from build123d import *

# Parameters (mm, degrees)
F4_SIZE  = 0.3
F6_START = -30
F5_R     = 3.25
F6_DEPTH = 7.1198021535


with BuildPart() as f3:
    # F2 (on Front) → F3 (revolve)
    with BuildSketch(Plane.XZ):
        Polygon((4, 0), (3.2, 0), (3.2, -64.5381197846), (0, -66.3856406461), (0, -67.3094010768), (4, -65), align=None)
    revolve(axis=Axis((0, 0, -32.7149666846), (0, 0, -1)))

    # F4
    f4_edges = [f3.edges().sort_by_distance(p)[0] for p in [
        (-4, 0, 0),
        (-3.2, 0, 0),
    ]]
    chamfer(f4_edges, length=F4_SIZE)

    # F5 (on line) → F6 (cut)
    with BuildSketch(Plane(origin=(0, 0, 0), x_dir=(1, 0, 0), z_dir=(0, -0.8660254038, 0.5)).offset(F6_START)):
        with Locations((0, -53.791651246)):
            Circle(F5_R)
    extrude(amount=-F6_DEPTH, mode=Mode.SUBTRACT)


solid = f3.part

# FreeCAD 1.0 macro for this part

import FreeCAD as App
import Part
import Sketcher
from FreeCAD import Vector
Q = App.Units.Quantity


def edges_at(feature, points):
    """Names of the edges that pass closest to the given points."""
    edges = feature.Shape.Edges
    near = lambda p: min(range(len(edges)), key=lambda i: edges[i].distToShape(Part.Vertex(*p))[0])
    return sorted({f"Edge{near(p) + 1}" for p in points})

doc = App.newDocument("Part")
body = doc.addObject("PartDesign::Body", "Body")

sketch1 = doc.addObject("Sketcher::SketchObject", "Sketch")
body.addObject(sketch1)
sketch1.AttachmentSupport = (doc.XZ_Plane, [""])
sketch1.MapMode = "FlatFace"
sketch1.addGeometry(Part.LineSegment(Vector(4, 0, 0), Vector(3.2, 0, 0)), False)
sketch1.addGeometry(Part.LineSegment(Vector(3.2, 0, 0), Vector(3.2, -64.5, 0)), False)
sketch1.addGeometry(Part.LineSegment(Vector(3.2, -64.5, 0), Vector(0, -66.4, 0)), False)
sketch1.addGeometry(Part.LineSegment(Vector(0, -66.4, 0), Vector(0, -67.3, 0)), False)
sketch1.addGeometry(Part.LineSegment(Vector(0, -67.3, 0), Vector(4, -65, 0)), False)
sketch1.addGeometry(Part.LineSegment(Vector(4, -65, 0), Vector(4, 0, 0)), False)
sketch1.addConstraint(Sketcher.Constraint("Coincident", 0, 2, 1, 1))
sketch1.addConstraint(Sketcher.Constraint("Coincident", 1, 2, 2, 1))
sketch1.addConstraint(Sketcher.Constraint("Coincident", 2, 2, 3, 1))
sketch1.addConstraint(Sketcher.Constraint("Coincident", 3, 2, 4, 1))
sketch1.addConstraint(Sketcher.Constraint("Coincident", 4, 2, 5, 1))
sketch1.addConstraint(Sketcher.Constraint("Coincident", 5, 2, 0, 1))
sketch1.addConstraint(Sketcher.Constraint("Horizontal", 0))
sketch1.addConstraint(Sketcher.Constraint("Vertical", 1))
sketch1.addConstraint(Sketcher.Constraint("Vertical", 3))
sketch1.addConstraint(Sketcher.Constraint("Vertical", 5))
sketch1.addConstraint(Sketcher.Constraint("PointOnObject", 0, 2, -1))
sketch1.addConstraint(Sketcher.Constraint("PointOnObject", 2, 2, -2))
sketch1.addConstraint(Sketcher.Constraint("Parallel", 2, 4))
sketch1.addConstraint(Sketcher.Constraint("DistanceY", 5, 1, 5, 2, 65.0))
sketch1.addConstraint(Sketcher.Constraint("Angle", 2, Q("-150 deg")))
sketch1.addConstraint(Sketcher.Constraint("DistanceX", 0, 2, 0, 1, 0.8))
sketch1.addConstraint(Sketcher.Constraint("DistanceX", -1, 1, 4, 2, 4.0))
sketch1.addConstraint(Sketcher.Constraint("DistanceY", 1, 2, 1, 1, 64.53812))
revolution = doc.addObject("PartDesign::Revolution", "Revolution")
body.addObject(revolution)
revolution.Profile = sketch1
revolution.ReferenceAxis = (sketch1, ["V_Axis"])
revolution.Angle = 360
doc.recompute()

chamfer = doc.addObject("PartDesign::Chamfer", "Chamfer")
body.addObject(chamfer)
chamfer.Base = (revolution, edges_at(revolution, [(-4, 0, 0), (-3.2, 0, 0)]))
chamfer.Size = 0.3

sketch2 = doc.addObject("Sketcher::SketchObject", "Sketch001")
body.addObject(sketch2)
sketch2.Placement = App.Placement(Vector(0, 25.980762, -15), App.Rotation(Vector(1, 0, 0), Vector(0, 0.5, 0.866025404), Vector(0, -0.866025404, 0.5), "ZXY"))
sketch2.addGeometry(Part.Circle(Vector(0, -53.8, 0), Vector(0, 0, 1), 3.2), False)
sketch2.addConstraint(Sketcher.Constraint("PointOnObject", 0, 3, -2))
sketch2.addConstraint(Sketcher.Constraint("Diameter", 0, 6.5))
sketch2.addConstraint(Sketcher.Constraint("DistanceY", 0, 3, -1, 1, 53.791651))
pocket1 = doc.addObject("PartDesign::Pocket", "Pocket")
body.addObject(pocket1)
pocket1.Profile = sketch2
pocket1.Length = 7.119802

doc.recompute()
